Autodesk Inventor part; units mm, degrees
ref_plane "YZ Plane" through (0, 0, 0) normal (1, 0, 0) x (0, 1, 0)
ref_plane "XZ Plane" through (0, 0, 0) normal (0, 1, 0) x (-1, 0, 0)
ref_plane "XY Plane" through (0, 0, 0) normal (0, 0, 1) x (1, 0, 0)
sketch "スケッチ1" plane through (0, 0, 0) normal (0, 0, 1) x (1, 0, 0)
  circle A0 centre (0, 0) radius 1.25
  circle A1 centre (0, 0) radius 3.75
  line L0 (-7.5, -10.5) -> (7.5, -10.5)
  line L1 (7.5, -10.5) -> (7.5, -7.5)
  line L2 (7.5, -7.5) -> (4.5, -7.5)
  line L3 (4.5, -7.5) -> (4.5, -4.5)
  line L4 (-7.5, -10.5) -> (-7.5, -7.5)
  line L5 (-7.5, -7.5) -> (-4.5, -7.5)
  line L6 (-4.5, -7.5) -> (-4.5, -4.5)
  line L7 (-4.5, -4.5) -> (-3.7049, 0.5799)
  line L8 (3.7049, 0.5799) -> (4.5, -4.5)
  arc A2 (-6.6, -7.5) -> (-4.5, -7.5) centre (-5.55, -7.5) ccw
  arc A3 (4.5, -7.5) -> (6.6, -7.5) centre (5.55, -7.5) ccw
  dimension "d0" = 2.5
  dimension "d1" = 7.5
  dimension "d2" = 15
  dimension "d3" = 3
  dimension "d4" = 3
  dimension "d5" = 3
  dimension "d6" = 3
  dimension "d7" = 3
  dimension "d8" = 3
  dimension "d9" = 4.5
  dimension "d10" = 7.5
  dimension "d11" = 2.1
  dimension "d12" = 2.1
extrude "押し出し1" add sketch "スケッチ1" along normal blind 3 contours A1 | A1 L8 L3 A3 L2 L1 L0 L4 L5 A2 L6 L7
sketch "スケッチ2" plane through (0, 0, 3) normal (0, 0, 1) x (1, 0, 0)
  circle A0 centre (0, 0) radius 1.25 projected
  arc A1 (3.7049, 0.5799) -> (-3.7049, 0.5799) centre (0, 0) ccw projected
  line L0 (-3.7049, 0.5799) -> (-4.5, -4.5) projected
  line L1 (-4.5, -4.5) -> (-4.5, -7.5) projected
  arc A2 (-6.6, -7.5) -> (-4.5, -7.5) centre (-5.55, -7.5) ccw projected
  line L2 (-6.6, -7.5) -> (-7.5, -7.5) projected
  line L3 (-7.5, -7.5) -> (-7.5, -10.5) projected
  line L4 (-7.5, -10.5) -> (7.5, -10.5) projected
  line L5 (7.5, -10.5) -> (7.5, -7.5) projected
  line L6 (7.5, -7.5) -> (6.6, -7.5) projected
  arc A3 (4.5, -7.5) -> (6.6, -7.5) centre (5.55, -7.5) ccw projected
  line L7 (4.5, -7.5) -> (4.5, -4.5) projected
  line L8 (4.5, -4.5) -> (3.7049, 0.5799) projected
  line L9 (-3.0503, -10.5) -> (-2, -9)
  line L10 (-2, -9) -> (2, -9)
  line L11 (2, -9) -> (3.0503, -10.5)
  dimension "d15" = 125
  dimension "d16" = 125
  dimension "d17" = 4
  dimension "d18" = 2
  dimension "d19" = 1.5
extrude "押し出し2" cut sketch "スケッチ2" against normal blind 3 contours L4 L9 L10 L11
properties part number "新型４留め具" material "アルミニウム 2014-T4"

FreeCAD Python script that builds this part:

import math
import FreeCAD as App
import Part
import Sketcher

V = App.Vector
Q = App.Units.Quantity

doc = App.newDocument("Part")
params = doc.addObject("Spreadsheet::Sheet", "Params")
for row, (alias, value) in enumerate([
    ("sketch1_diameter", "2.5 mm"),
    ("sketch1_width", "15 mm"),
    ("sketch1_height", "3 mm"),
    ("sketch1_radius", "3.75 mm"),
    ("sketch1_radius2", "1.05 mm"),
    ("pad1_length", "3 mm"),
    ("sketch2_width", "4 mm"),
    ("pocket1_length", "3 mm"),
], start=1):
    params.set(f"A{row}", alias)
    params.set(f"B{row}", "=" + value)
    params.setAlias(f"B{row}", alias)

body = doc.addObject("PartDesign::Body", "Body")

# Sketch on XY plane
sketch1 = doc.addObject("Sketcher::SketchObject", "Sketch")
body.addObject(sketch1)
sketch1.AttachmentSupport = (doc.XY_Plane, [""])
sketch1.MapMode = "FlatFace"
sketch1.addGeometry(Part.ArcOfCircle(Part.Circle(V(0, 0, 0), V(0, 0, 1), 3.75), math.radians(8.895896), math.radians(171.104104)), False)
sketch1.addGeometry(Part.LineSegment(V(-3.7049, 0.5799, 0), V(-4.5, -4.5, 0)), False)
sketch1.addGeometry(Part.LineSegment(V(-4.5, -4.5, 0), V(-4.5, -7.5, 0)), False)
sketch1.addGeometry(Part.ArcOfCircle(Part.Circle(V(-5.55, -7.5, 0), V(0, 0, 1), 1.05), math.radians(180), math.radians(360)), False)
sketch1.addGeometry(Part.LineSegment(V(-6.6, -7.5, 0), V(-7.5, -7.5, 0)), False)
sketch1.addGeometry(Part.LineSegment(V(-7.5, -7.5, 0), V(-7.5, -10.5, 0)), False)
sketch1.addGeometry(Part.LineSegment(V(-7.5, -10.5, 0), V(7.5, -10.5, 0)), False)
sketch1.addGeometry(Part.LineSegment(V(7.5, -10.5, 0), V(7.5, -7.5, 0)), False)
sketch1.addGeometry(Part.LineSegment(V(7.5, -7.5, 0), V(6.6, -7.5, 0)), False)
sketch1.addGeometry(Part.ArcOfCircle(Part.Circle(V(5.55, -7.5, 0), V(0, 0, 1), 1.05), math.radians(180), math.radians(360)), False)
sketch1.addGeometry(Part.LineSegment(V(4.5, -7.5, 0), V(4.5, -4.5, 0)), False)
sketch1.addGeometry(Part.LineSegment(V(4.5, -4.5, 0), V(3.7049, 0.5799, 0)), False)
sketch1.addGeometry(Part.Circle(V(0, 0, 0), V(0, 0, 1), 1.25), False)
sketch1.addConstraint(Sketcher.Constraint("Tangent", 0, 2, 1, 1))
sketch1.addConstraint(Sketcher.Constraint("Coincident", 1, 2, 2, 1))
sketch1.addConstraint(Sketcher.Constraint("Tangent", 2, 2, 3, 2))
sketch1.addConstraint(Sketcher.Constraint("Coincident", 3, 1, 4, 1))
sketch1.addConstraint(Sketcher.Constraint("Coincident", 4, 2, 5, 1))
sketch1.addConstraint(Sketcher.Constraint("Coincident", 5, 2, 6, 1))
sketch1.addConstraint(Sketcher.Constraint("Coincident", 6, 2, 7, 1))
sketch1.addConstraint(Sketcher.Constraint("Coincident", 7, 2, 8, 1))
sketch1.addConstraint(Sketcher.Constraint("Coincident", 8, 2, 9, 2))
sketch1.addConstraint(Sketcher.Constraint("Tangent", 9, 1, 10, 1))
sketch1.addConstraint(Sketcher.Constraint("Coincident", 10, 2, 11, 1))
sketch1.addConstraint(Sketcher.Constraint("Tangent", 11, 2, 0, 1))
sketch1.addConstraint(Sketcher.Constraint("Vertical", 2))
sketch1.addConstraint(Sketcher.Constraint("Horizontal", 4))
sketch1.addConstraint(Sketcher.Constraint("Vertical", 5))
sketch1.addConstraint(Sketcher.Constraint("Horizontal", 6))
sketch1.addConstraint(Sketcher.Constraint("Vertical", 7))
sketch1.addConstraint(Sketcher.Constraint("Horizontal", 8))
sketch1.addConstraint(Sketcher.Constraint("Vertical", 10))
sketch1.addConstraint(Sketcher.Constraint("Coincident", 0, 3, -1, 1))
sketch1.addConstraint(Sketcher.Constraint("Coincident", 12, 3, -1, 1))
sketch1.addConstraint(Sketcher.Constraint("Equal", 3, 9))
sketch1.addConstraint(Sketcher.Constraint("Symmetric", 3, 3, 9, 3, -2))
sketch1.addConstraint(Sketcher.Constraint("Symmetric", 4, 2, 7, 2, -2))
sketch1.addConstraint(Sketcher.Constraint("Horizontal", 2, 2, 3, 1))
sketch1.addConstraint(Sketcher.Constraint("Horizontal", 1, 2, 10, 2))
sketch1.addConstraint(Sketcher.Constraint("Equal", 2, 5))
sketch1.addConstraint(Sketcher.Constraint("Diameter", 12, Q("2.5 mm")))
sketch1.addConstraint(Sketcher.Constraint("DistanceX", 6, 1, 6, 2, Q("15 mm")))
sketch1.addConstraint(Sketcher.Constraint("DistanceY", 2, 2, 2, 1, Q("3 mm")))
sketch1.addConstraint(Sketcher.Constraint("Radius", 0, Q("3.75 mm")))
sketch1.addConstraint(Sketcher.Constraint("Radius", 3, Q("1.05 mm")))
sketch1.addConstraint(Sketcher.Constraint("DistanceX", 4, 2, 2, 2, Q("3 mm")))
sketch1.addConstraint(Sketcher.Constraint("DistanceY", 3, 3, -1, 1, Q("7.5 mm")))
sketch1.setExpression("Constraints[27]", "Params.sketch1_diameter")
sketch1.setExpression("Constraints[28]", "Params.sketch1_width")
sketch1.setExpression("Constraints[29]", "Params.sketch1_height")
sketch1.setExpression("Constraints[30]", "Params.sketch1_radius")
sketch1.setExpression("Constraints[31]", "Params.sketch1_radius2")
pad1 = doc.addObject("PartDesign::Pad", "Pad")
body.addObject(pad1)
pad1.Profile = sketch1
pad1.setExpression("Length", "Params.pad1_length")

# Sketch on XY plane
sketch2 = doc.addObject("Sketcher::SketchObject", "Sketch001")
body.addObject(sketch2)
sketch2.AttachmentSupport = (doc.XY_Plane, [""])
sketch2.MapMode = "FlatFace"
sketch2.AttachmentOffset = App.Placement(V(0, 0, 3), App.Rotation())
sketch2.addGeometry(Part.LineSegment(V(-3.0503, -10.5, 0), V(3.0503, -10.5, 0)), False)
sketch2.addGeometry(Part.LineSegment(V(3.0503, -10.5, 0), V(2, -9, 0)), False)
sketch2.addGeometry(Part.LineSegment(V(2, -9, 0), V(-2, -9, 0)), False)
sketch2.addGeometry(Part.LineSegment(V(-2, -9, 0), V(-3.0503, -10.5, 0)), False)
sketch2.addConstraint(Sketcher.Constraint("Coincident", 0, 2, 1, 1))
sketch2.addConstraint(Sketcher.Constraint("Coincident", 1, 2, 2, 1))
sketch2.addConstraint(Sketcher.Constraint("Coincident", 2, 2, 3, 1))
sketch2.addConstraint(Sketcher.Constraint("Coincident", 3, 2, 0, 1))
sketch2.addConstraint(Sketcher.Constraint("Horizontal", 0))
sketch2.addConstraint(Sketcher.Constraint("Horizontal", 2))
sketch2.addConstraint(Sketcher.Constraint("Equal", 1, 3))
sketch2.addConstraint(Sketcher.Constraint("DistanceX", 2, 2, 2, 1, Q("4 mm")))
sketch2.addConstraint(Sketcher.Constraint("Angle", 1, Q("124.9997 deg")))
sketch2.addConstraint(Sketcher.Constraint("DistanceX", -1, 1, 1, 2, Q("2 mm")))
sketch2.addConstraint(Sketcher.Constraint("DistanceY", 0, 2, 1, 2, Q("1.5 mm")))
sketch2.addConstraint(Sketcher.Constraint("DistanceY", 1, 2, -1, 1, Q("9 mm")))
sketch2.setExpression("Constraints[7]", "Params.sketch2_width")
pocket1 = doc.addObject("PartDesign::Pocket", "Pocket")
body.addObject(pocket1)
pocket1.Profile = sketch2
pocket1.setExpression("Length", "Params.pocket1_length")

doc.recompute()
